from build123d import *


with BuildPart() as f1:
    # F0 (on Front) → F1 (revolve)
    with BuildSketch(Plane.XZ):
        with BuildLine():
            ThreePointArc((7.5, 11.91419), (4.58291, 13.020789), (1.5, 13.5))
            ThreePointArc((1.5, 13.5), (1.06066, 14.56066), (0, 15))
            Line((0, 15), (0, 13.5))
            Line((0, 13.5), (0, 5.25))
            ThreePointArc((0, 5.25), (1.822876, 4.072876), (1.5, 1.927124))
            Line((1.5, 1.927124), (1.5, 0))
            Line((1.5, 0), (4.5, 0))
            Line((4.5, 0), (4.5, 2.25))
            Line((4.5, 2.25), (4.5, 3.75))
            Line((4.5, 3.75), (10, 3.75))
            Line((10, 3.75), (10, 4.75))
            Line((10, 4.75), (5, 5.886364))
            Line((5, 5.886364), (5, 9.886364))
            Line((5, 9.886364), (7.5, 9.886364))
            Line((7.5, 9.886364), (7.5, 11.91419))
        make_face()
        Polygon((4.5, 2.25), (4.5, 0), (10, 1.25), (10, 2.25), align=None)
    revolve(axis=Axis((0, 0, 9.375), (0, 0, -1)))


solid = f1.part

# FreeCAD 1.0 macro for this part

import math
import FreeCAD as App
import Part
import Sketcher

V = App.Vector

doc = App.newDocument("Part")
params = doc.addObject("Spreadsheet::Sheet", "Params")
for row, (alias, value) in enumerate([
    ("sketch1_radius", "2 mm"),
    ("sketch1_radius2", "1.500001 mm"),
    ("sketch1_width", "3 mm"),
    ("sketch1_height", "1 mm"),
    ("sketch1_height2", "4 mm"),
    ("revolution_angle", "360 deg"),
], start=1):
    params.set(f"A{row}", alias)
    params.set(f"B{row}", "=" + value)
    params.setAlias(f"B{row}", alias)

body = doc.addObject("PartDesign::Body", "Body")

# Sketch on XZ plane
sketch1 = doc.addObject("Sketcher::SketchObject", "Sketch")
body.addObject(sketch1)
sketch1.AttachmentSupport = (doc.XZ_Plane, [""])
sketch1.MapMode = "FlatFace"
sketch1.addGeometry([
    Part.ArcOfCircle(Part.Circle(V(0.749998, -1.481246, 0), V(0, 0, 1), 15.000008), math.radians(63.256322), math.radians(87.134009)),  # 0
    Part.ArcOfCircle(Part.Circle(V(-0.000001, 13.499999, 0), V(0, 0, 1), 1.500001), math.radians(0.000022), math.radians(89.999978)),  # 1
    Part.LineSegment(V(0, 15, 0), V(0, 5.25, 0)),  # 2
    Part.ArcOfCircle(Part.Circle(V(0.000001, 3.25, 0), V(0, 0, 1), 2), math.radians(-41.409643), math.radians(90.000017)),  # 3
    Part.LineSegment(V(1.5, 1.927124, 0), V(1.5, 0, 0)),  # 4
    Part.LineSegment(V(1.5, 0, 0), V(4.5, 0, 0)),  # 5
    Part.LineSegment(V(4.5, 0, 0), V(10, 1.25, 0)),  # 6
    Part.LineSegment(V(10, 1.25, 0), V(10, 2.25, 0)),  # 7
    Part.LineSegment(V(10, 2.25, 0), V(4.5, 2.25, 0)),  # 8
    Part.LineSegment(V(4.5, 2.25, 0), V(4.5, 3.75, 0)),  # 9
    Part.LineSegment(V(4.5, 3.75, 0), V(10, 3.75, 0)),  # 10
    Part.LineSegment(V(10, 3.75, 0), V(10, 4.75, 0)),  # 11
    Part.LineSegment(V(10, 4.75, 0), V(5, 5.886364, 0)),  # 12
    Part.LineSegment(V(5, 5.886364, 0), V(5, 9.886364, 0)),  # 13
    Part.LineSegment(V(5, 9.886364, 0), V(7.5, 9.886364, 0)),  # 14
    Part.LineSegment(V(7.5, 9.886364, 0), V(7.5, 11.91419, 0)),  # 15
], False)
sketch1.addConstraint([
    Sketcher.Constraint("Coincident", 0, 2, 1, 1),
    Sketcher.Constraint("Coincident", 1, 2, 2, 1),
    Sketcher.Constraint("Coincident", 2, 2, 3, 2),
    Sketcher.Constraint("Coincident", 3, 1, 4, 1),
    Sketcher.Constraint("Coincident", 4, 2, 5, 1),
    Sketcher.Constraint("Coincident", 5, 2, 6, 1),
    Sketcher.Constraint("Coincident", 6, 2, 7, 1),
    Sketcher.Constraint("Coincident", 7, 2, 8, 1),
    Sketcher.Constraint("Coincident", 8, 2, 9, 1),
    Sketcher.Constraint("Coincident", 9, 2, 10, 1),
    Sketcher.Constraint("Coincident", 10, 2, 11, 1),
    Sketcher.Constraint("Coincident", 11, 2, 12, 1),
    Sketcher.Constraint("Coincident", 12, 2, 13, 1),
    Sketcher.Constraint("Coincident", 13, 2, 14, 1),
    Sketcher.Constraint("Coincident", 14, 2, 15, 1),
    Sketcher.Constraint("Coincident", 15, 2, 0, 1),
    Sketcher.Constraint("Vertical", 2),
    Sketcher.Constraint("Vertical", 4),
    Sketcher.Constraint("Horizontal", 5),
    Sketcher.Constraint("Vertical", 7),
    Sketcher.Constraint("Horizontal", 8),
    Sketcher.Constraint("Vertical", 9),
    Sketcher.Constraint("Horizontal", 10),
    Sketcher.Constraint("Vertical", 11),
    Sketcher.Constraint("Vertical", 13),
    Sketcher.Constraint("Horizontal", 14),
    Sketcher.Constraint("Vertical", 15),
    Sketcher.Constraint("PointOnObject", 1, 3, -2),
    Sketcher.Constraint("PointOnObject", 3, 3, -2),
    Sketcher.Constraint("PointOnObject", 1, 2, -2),
    Sketcher.Constraint("PointOnObject", 4, 2, -1),
    Sketcher.Constraint("Horizontal", 1, 3, 0, 2),
    Sketcher.Constraint("Vertical", 0, 2, 3, 1),
    Sketcher.Constraint("Vertical", 5, 2, 8, 2),
    Sketcher.Constraint("Vertical", 7, 2, 10, 2),
    Sketcher.Constraint("Equal", 7, 11),
    Sketcher.Constraint("Radius", 3, 2.0),
    Sketcher.Constraint("Radius", 1, 1.500001),
    Sketcher.Constraint("DistanceX", 5, 1, 5, 2, 3.0),
    Sketcher.Constraint("DistanceY", 7, 1, 7, 2, 1.0),
    Sketcher.Constraint("DistanceY", 13, 1, 13, 2, 4.0),
    Sketcher.Constraint("DistanceX", 8, 2, 8, 1, 5.5),
    Sketcher.Constraint("DistanceX", 14, 1, 14, 2, 2.5),
    Sketcher.Constraint("DistanceY", 9, 1, 9, 2, 1.5),
    Sketcher.Constraint("DistanceY", -1, 1, 1, 2, 15.0),
    Sketcher.Constraint("DistanceX", -1, 1, 12, 2, 5.0),
    Sketcher.Constraint("DistanceY", 6, 2, 3, 3, 2.0),
    Sketcher.Constraint("DistanceY", 2, 2, 2, 1, 9.75),
    Sketcher.Constraint("DistanceX", 1, 3, 0, 3, 0.749998),
    Sketcher.Constraint("Radius", 0, 15.000008),
    Sketcher.Constraint("DistanceY", 15, 1, 15, 2, 2.027826),
])
sketch1.setExpression("Constraints[36]", "Params.sketch1_radius")
sketch1.setExpression("Constraints[37]", "Params.sketch1_radius2")
sketch1.setExpression("Constraints[38]", "Params.sketch1_width")
sketch1.setExpression("Constraints[39]", "Params.sketch1_height")
sketch1.setExpression("Constraints[40]", "Params.sketch1_height2")
revolution = doc.addObject("PartDesign::Revolution", "Revolution")
body.addObject(revolution)
revolution.Profile = sketch1
revolution.ReferenceAxis = (sketch1, ["V_Axis"])
revolution.setExpression("Angle", "Params.revolution_angle")

doc.recompute()
